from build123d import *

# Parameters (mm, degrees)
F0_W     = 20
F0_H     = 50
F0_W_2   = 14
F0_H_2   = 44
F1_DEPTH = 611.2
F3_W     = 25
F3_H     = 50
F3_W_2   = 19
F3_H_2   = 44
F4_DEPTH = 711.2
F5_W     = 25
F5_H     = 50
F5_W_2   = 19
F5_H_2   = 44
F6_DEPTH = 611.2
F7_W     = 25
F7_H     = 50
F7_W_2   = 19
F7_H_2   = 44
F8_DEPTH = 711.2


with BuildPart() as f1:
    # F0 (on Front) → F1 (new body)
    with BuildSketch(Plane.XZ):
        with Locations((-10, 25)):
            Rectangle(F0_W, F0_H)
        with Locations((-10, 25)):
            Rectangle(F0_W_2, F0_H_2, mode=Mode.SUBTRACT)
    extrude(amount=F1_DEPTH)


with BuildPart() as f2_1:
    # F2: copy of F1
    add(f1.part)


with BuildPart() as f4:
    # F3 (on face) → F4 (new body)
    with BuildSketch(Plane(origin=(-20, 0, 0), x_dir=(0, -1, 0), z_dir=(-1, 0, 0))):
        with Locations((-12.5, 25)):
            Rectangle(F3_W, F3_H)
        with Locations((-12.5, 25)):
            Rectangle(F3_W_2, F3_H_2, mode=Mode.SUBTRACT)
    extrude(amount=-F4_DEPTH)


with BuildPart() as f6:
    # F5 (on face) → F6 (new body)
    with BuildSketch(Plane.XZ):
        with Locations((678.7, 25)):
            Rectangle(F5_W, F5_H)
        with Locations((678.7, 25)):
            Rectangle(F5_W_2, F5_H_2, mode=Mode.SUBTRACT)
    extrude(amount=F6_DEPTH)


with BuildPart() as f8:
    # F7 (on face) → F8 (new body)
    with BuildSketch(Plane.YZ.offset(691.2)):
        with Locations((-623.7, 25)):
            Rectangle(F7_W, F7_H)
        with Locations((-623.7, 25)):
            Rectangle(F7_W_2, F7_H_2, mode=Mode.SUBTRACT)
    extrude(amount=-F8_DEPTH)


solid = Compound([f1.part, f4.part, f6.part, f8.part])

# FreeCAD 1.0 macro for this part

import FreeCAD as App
import Part
import Sketcher

doc = App.newDocument("Part")
body = doc.addObject("PartDesign::Body", "Body")

sketch1 = body.newObject("Sketcher::SketchObject", "Sketch")
sketch1.AttachmentSupport = (doc.getObject("XZ_Plane"), [""])
sketch1.MapMode = "FlatFace"
sketch1.addGeometry([
    Part.LineSegment(App.Vector(-20, 50, 0), App.Vector(-20, 0, 0)),
    Part.LineSegment(App.Vector(-20, 0, 0), App.Vector(0, 0, 0)),
    Part.LineSegment(App.Vector(0, 0, 0), App.Vector(0, 50, 0)),
    Part.LineSegment(App.Vector(0, 50, 0), App.Vector(-20, 50, 0)),
    Part.LineSegment(App.Vector(-3, 3, 0), App.Vector(-17, 3, 0)),
    Part.LineSegment(App.Vector(-17, 3, 0), App.Vector(-17, 47, 0)),
    Part.LineSegment(App.Vector(-17, 47, 0), App.Vector(-3, 47, 0)),
    Part.LineSegment(App.Vector(-3, 47, 0), App.Vector(-3, 3, 0)),
], False)
sketch1.addConstraint([
    Sketcher.Constraint("Coincident", 0, 2, 1, 1),
    Sketcher.Constraint("Coincident", 1, 2, 2, 1),
    Sketcher.Constraint("Coincident", 2, 2, 3, 1),
    Sketcher.Constraint("Coincident", 3, 2, 0, 1),
    Sketcher.Constraint("Coincident", 4, 2, 5, 1),
    Sketcher.Constraint("Coincident", 5, 2, 6, 1),
    Sketcher.Constraint("Coincident", 6, 2, 7, 1),
    Sketcher.Constraint("Coincident", 7, 2, 4, 1),
    Sketcher.Constraint("Vertical", 0),
    Sketcher.Constraint("Horizontal", 1),
    Sketcher.Constraint("Vertical", 2),
    Sketcher.Constraint("Horizontal", 3),
    Sketcher.Constraint("Horizontal", 4),
    Sketcher.Constraint("Vertical", 5),
    Sketcher.Constraint("Horizontal", 6),
    Sketcher.Constraint("Vertical", 7),
    Sketcher.Constraint("Coincident", 1, 2, -1, 1),
    Sketcher.Constraint("DistanceX", 1, 1, 1, 2, 20.0),
    Sketcher.Constraint("DistanceX", 4, 2, 4, 1, 14.0),
    Sketcher.Constraint("DistanceY", 0, 2, 0, 1, 50.0),
    Sketcher.Constraint("DistanceY", 5, 1, 5, 2, 44.0),
    Sketcher.Constraint("DistanceX", 4, 2, -1, 1, 17.0),
    Sketcher.Constraint("DistanceY", -1, 1, 4, 2, 3.0),
])
pad1 = body.newObject("PartDesign::Pad", "Pad")
pad1.Profile = sketch1
pad1.Length = 611.2
body2 = doc.addObject("PartDesign::Body", "Body001")
doc.recompute()

body2.BaseFeature = body
doc.recompute()
body3 = doc.addObject("PartDesign::Body", "Body002")

sketch2 = body3.newObject("Sketcher::SketchObject", "Sketch001")
sketch2.AttachmentSupport = (doc.getObject("YZ_Plane002"), [""])
sketch2.MapMode = "FlatFace"
sketch2.AttachmentOffset = App.Placement(App.Vector(0, 0, -20), App.Rotation())
sketch2.addGeometry([
    Part.LineSegment(App.Vector(25, 50, 0), App.Vector(25, 0, 0)),
    Part.LineSegment(App.Vector(25, 0, 0), App.Vector(0, 0, 0)),
    Part.LineSegment(App.Vector(0, 0, 0), App.Vector(0, 50, 0)),
    Part.LineSegment(App.Vector(0, 50, 0), App.Vector(25, 50, 0)),
    Part.LineSegment(App.Vector(3, 3, 0), App.Vector(22, 3, 0)),
    Part.LineSegment(App.Vector(22, 3, 0), App.Vector(22, 47, 0)),
    Part.LineSegment(App.Vector(22, 47, 0), App.Vector(3, 47, 0)),
    Part.LineSegment(App.Vector(3, 47, 0), App.Vector(3, 3, 0)),
], False)
sketch2.addConstraint([
    Sketcher.Constraint("Coincident", 0, 2, 1, 1),
    Sketcher.Constraint("Coincident", 1, 2, 2, 1),
    Sketcher.Constraint("Coincident", 2, 2, 3, 1),
    Sketcher.Constraint("Coincident", 3, 2, 0, 1),
    Sketcher.Constraint("Coincident", 4, 2, 5, 1),
    Sketcher.Constraint("Coincident", 5, 2, 6, 1),
    Sketcher.Constraint("Coincident", 6, 2, 7, 1),
    Sketcher.Constraint("Coincident", 7, 2, 4, 1),
    Sketcher.Constraint("Vertical", 0),
    Sketcher.Constraint("Horizontal", 1),
    Sketcher.Constraint("Vertical", 2),
    Sketcher.Constraint("Horizontal", 3),
    Sketcher.Constraint("Horizontal", 4),
    Sketcher.Constraint("Vertical", 5),
    Sketcher.Constraint("Horizontal", 6),
    Sketcher.Constraint("Vertical", 7),
    Sketcher.Constraint("Coincident", 1, 2, -1, 1),
    Sketcher.Constraint("DistanceX", 1, 2, 1, 1, 25.0),
    Sketcher.Constraint("DistanceX", 4, 1, 4, 2, 19.0),
    Sketcher.Constraint("DistanceY", 0, 2, 0, 1, 50.0),
    Sketcher.Constraint("DistanceY", 5, 1, 5, 2, 44.0),
    Sketcher.Constraint("DistanceX", -1, 1, 4, 2, 22.0),
    Sketcher.Constraint("DistanceY", -1, 1, 4, 2, 3.0),
])
pad2 = body3.newObject("PartDesign::Pad", "Pad001")
pad2.Profile = sketch2
pad2.Length = 711.2
body4 = doc.addObject("PartDesign::Body", "Body003")

sketch3 = body4.newObject("Sketcher::SketchObject", "Sketch002")
sketch3.AttachmentSupport = (doc.getObject("XZ_Plane003"), [""])
sketch3.MapMode = "FlatFace"
sketch3.addGeometry([
    Part.LineSegment(App.Vector(666, 50, 0), App.Vector(666, 0, 0)),
    Part.LineSegment(App.Vector(666, 0, 0), App.Vector(691, 0, 0)),
    Part.LineSegment(App.Vector(691, 0, 0), App.Vector(691, 50, 0)),
    Part.LineSegment(App.Vector(691, 50, 0), App.Vector(666, 50, 0)),
    Part.LineSegment(App.Vector(688, 3, 0), App.Vector(669, 3, 0)),
    Part.LineSegment(App.Vector(669, 3, 0), App.Vector(669, 47, 0)),
    Part.LineSegment(App.Vector(669, 47, 0), App.Vector(688, 47, 0)),
    Part.LineSegment(App.Vector(688, 47, 0), App.Vector(688, 3, 0)),
], False)
sketch3.addConstraint([
    Sketcher.Constraint("Coincident", 0, 2, 1, 1),
    Sketcher.Constraint("Coincident", 1, 2, 2, 1),
    Sketcher.Constraint("Coincident", 2, 2, 3, 1),
    Sketcher.Constraint("Coincident", 3, 2, 0, 1),
    Sketcher.Constraint("Coincident", 4, 2, 5, 1),
    Sketcher.Constraint("Coincident", 5, 2, 6, 1),
    Sketcher.Constraint("Coincident", 6, 2, 7, 1),
    Sketcher.Constraint("Coincident", 7, 2, 4, 1),
    Sketcher.Constraint("Vertical", 0),
    Sketcher.Constraint("Horizontal", 1),
    Sketcher.Constraint("Vertical", 2),
    Sketcher.Constraint("Horizontal", 3),
    Sketcher.Constraint("Horizontal", 4),
    Sketcher.Constraint("Vertical", 5),
    Sketcher.Constraint("Horizontal", 6),
    Sketcher.Constraint("Vertical", 7),
    Sketcher.Constraint("PointOnObject", 0, 2, -1),
    Sketcher.Constraint("DistanceX", 1, 1, 1, 2, 25.0),
    Sketcher.Constraint("DistanceX", 4, 2, 4, 1, 19.0),
    Sketcher.Constraint("DistanceY", 0, 2, 0, 1, 50.0),
    Sketcher.Constraint("DistanceY", 5, 1, 5, 2, 44.0),
    Sketcher.Constraint("DistanceY", -1, 1, 4, 2, 3.0),
    Sketcher.Constraint("DistanceX", 0, 2, 4, 2, 3.0),
    Sketcher.Constraint("DistanceX", -1, 1, 0, 2, 666.2),
])
pad3 = body4.newObject("PartDesign::Pad", "Pad002")
pad3.Profile = sketch3
pad3.Length = 611.2
body5 = doc.addObject("PartDesign::Body", "Body004")

sketch4 = body5.newObject("Sketcher::SketchObject", "Sketch003")
sketch4.AttachmentSupport = (doc.getObject("YZ_Plane004"), [""])
sketch4.MapMode = "FlatFace"
sketch4.AttachmentOffset = App.Placement(App.Vector(0, 0, 691.2), App.Rotation())
sketch4.addGeometry([
    Part.LineSegment(App.Vector(-636, 50, 0), App.Vector(-636, 0, 0)),
    Part.LineSegment(App.Vector(-636, 0, 0), App.Vector(-611, 0, 0)),
    Part.LineSegment(App.Vector(-611, 0, 0), App.Vector(-611, 50, 0)),
    Part.LineSegment(App.Vector(-611, 50, 0), App.Vector(-636, 50, 0)),
    Part.LineSegment(App.Vector(-614, 3, 0), App.Vector(-633, 3, 0)),
    Part.LineSegment(App.Vector(-633, 3, 0), App.Vector(-633, 47, 0)),
    Part.LineSegment(App.Vector(-633, 47, 0), App.Vector(-614, 47, 0)),
    Part.LineSegment(App.Vector(-614, 47, 0), App.Vector(-614, 3, 0)),
], False)
sketch4.addConstraint([
    Sketcher.Constraint("Coincident", 0, 2, 1, 1),
    Sketcher.Constraint("Coincident", 1, 2, 2, 1),
    Sketcher.Constraint("Coincident", 2, 2, 3, 1),
    Sketcher.Constraint("Coincident", 3, 2, 0, 1),
    Sketcher.Constraint("Coincident", 4, 2, 5, 1),
    Sketcher.Constraint("Coincident", 5, 2, 6, 1),
    Sketcher.Constraint("Coincident", 6, 2, 7, 1),
    Sketcher.Constraint("Coincident", 7, 2, 4, 1),
    Sketcher.Constraint("Vertical", 0),
    Sketcher.Constraint("Horizontal", 1),
    Sketcher.Constraint("Vertical", 2),
    Sketcher.Constraint("Horizontal", 3),
    Sketcher.Constraint("Horizontal", 4),
    Sketcher.Constraint("Vertical", 5),
    Sketcher.Constraint("Horizontal", 6),
    Sketcher.Constraint("Vertical", 7),
    Sketcher.Constraint("PointOnObject", 0, 2, -1),
    Sketcher.Constraint("DistanceX", 1, 1, 1, 2, 25.0),
    Sketcher.Constraint("DistanceX", 4, 2, 4, 1, 19.0),
    Sketcher.Constraint("DistanceY", 0, 2, 0, 1, 50.0),
    Sketcher.Constraint("DistanceY", 5, 1, 5, 2, 44.0),
    Sketcher.Constraint("DistanceY", -1, 1, 4, 2, 3.0),
    Sketcher.Constraint("DistanceX", 0, 2, 4, 2, 3.0),
    Sketcher.Constraint("DistanceX", 0, 2, -1, 1, 636.2),
])
pad4 = body5.newObject("PartDesign::Pad", "Pad003")
pad4.Profile = sketch4
pad4.Length = 711.2
pad4.Reversed = True
body.Visibility = False

doc.recompute()
